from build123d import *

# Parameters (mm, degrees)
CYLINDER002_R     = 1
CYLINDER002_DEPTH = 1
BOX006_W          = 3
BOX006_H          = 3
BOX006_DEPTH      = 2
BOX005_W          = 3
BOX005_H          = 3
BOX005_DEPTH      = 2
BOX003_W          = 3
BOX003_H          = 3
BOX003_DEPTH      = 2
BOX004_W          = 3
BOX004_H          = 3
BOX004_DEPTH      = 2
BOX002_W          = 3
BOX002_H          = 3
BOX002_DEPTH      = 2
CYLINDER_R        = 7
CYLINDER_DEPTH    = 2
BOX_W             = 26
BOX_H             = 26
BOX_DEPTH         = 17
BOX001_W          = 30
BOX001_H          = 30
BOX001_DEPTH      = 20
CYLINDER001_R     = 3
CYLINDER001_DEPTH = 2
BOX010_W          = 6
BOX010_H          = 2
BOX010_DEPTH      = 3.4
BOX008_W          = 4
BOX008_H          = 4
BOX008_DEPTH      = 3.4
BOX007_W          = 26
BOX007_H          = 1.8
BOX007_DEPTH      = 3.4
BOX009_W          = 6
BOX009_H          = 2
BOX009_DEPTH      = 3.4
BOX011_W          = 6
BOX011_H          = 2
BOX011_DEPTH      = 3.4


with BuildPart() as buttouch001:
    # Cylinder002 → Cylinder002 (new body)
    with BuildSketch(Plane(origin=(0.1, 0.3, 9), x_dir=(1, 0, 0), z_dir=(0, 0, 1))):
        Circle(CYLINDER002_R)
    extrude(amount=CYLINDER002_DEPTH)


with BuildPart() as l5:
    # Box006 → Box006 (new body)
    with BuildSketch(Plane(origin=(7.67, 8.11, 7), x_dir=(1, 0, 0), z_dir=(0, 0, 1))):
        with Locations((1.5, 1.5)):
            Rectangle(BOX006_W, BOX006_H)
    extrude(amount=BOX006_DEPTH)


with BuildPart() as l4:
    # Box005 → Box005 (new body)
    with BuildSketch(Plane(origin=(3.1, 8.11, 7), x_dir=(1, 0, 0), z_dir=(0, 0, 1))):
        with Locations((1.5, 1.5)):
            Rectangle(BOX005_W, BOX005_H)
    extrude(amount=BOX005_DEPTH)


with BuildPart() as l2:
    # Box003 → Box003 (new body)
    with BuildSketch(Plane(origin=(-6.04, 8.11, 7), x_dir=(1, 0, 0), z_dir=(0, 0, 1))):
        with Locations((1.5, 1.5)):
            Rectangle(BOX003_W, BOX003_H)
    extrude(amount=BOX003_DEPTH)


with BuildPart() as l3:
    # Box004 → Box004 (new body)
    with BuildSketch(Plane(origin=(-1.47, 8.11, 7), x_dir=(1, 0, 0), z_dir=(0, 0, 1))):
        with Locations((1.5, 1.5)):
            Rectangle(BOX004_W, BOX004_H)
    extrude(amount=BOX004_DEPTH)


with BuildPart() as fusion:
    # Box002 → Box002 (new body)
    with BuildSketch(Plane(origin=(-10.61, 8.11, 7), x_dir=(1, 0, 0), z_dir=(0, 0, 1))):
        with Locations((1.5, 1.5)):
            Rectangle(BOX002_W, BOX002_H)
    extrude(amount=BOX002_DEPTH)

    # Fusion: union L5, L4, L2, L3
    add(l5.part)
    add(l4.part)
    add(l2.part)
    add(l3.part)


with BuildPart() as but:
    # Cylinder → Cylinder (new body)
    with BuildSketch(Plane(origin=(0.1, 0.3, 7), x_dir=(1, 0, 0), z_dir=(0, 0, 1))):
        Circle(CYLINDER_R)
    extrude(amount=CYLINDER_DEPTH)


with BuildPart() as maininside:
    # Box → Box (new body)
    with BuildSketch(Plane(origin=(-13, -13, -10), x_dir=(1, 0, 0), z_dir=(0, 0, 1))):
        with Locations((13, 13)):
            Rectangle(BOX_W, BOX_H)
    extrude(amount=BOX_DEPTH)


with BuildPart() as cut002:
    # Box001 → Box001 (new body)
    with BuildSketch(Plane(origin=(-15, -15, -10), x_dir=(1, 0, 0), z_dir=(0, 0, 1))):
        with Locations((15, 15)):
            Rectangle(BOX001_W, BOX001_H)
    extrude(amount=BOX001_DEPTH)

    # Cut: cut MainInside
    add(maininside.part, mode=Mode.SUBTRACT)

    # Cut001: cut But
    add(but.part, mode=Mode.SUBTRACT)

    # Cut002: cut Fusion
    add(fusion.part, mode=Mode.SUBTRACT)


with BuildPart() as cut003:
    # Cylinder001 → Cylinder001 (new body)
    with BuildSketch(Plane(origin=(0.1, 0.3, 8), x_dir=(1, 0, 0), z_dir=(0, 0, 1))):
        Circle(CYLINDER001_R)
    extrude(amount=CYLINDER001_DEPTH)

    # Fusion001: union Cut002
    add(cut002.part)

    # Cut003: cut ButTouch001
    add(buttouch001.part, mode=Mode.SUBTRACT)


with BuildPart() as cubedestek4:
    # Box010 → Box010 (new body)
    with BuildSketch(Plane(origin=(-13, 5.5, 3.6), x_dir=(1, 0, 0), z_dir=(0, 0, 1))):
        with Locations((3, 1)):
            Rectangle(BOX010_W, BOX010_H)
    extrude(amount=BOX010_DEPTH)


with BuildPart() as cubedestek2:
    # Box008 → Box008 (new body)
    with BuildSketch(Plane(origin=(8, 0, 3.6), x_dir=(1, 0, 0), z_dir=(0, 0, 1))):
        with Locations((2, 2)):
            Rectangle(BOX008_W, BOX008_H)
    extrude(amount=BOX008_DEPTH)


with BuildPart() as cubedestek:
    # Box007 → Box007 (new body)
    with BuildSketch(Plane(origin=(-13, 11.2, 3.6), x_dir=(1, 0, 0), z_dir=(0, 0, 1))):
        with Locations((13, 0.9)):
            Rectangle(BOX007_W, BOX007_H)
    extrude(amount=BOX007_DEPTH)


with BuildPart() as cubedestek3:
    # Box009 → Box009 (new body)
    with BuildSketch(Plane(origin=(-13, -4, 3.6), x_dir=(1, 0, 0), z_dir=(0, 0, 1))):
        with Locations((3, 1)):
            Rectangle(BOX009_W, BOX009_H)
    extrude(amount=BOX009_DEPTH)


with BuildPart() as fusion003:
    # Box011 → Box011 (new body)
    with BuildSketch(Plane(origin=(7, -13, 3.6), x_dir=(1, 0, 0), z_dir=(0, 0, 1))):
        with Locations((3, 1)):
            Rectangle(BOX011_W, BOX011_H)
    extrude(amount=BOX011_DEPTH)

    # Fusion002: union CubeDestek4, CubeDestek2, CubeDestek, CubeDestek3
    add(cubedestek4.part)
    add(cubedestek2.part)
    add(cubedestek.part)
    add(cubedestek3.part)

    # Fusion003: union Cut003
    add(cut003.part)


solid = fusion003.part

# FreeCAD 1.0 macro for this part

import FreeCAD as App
import Part
import Sketcher

doc = App.newDocument("Part")
body = doc.addObject("PartDesign::Body", "Body")

# Sketch on XY plane
sketch1 = body.newObject("Sketcher::SketchObject", "Sketch")
sketch1.AttachmentSupport = (doc.getObject("XY_Plane"), [""])
sketch1.MapMode = "FlatFace"
sketch1.AttachmentOffset = App.Placement(App.Vector(0, 0, 9), App.Rotation())
sketch1.addGeometry(Part.Circle(App.Vector(0.1, 0.3, 0), App.Vector(0, 0, 1), 1), False)
sketch1.addConstraint([
    Sketcher.Constraint("Diameter", 0, 2.0),
    Sketcher.Constraint("DistanceX", -1, 1, 0, 3, 0.1),
    Sketcher.Constraint("DistanceY", -1, 1, 0, 3, 0.3),
])
pad1 = body.newObject("PartDesign::Pad", "Pad")
pad1.Profile = sketch1
pad1.Length = 1
body2 = doc.addObject("PartDesign::Body", "Body001")

# Sketch on XY plane
sketch2 = body2.newObject("Sketcher::SketchObject", "Sketch001")
sketch2.AttachmentSupport = (doc.getObject("XY_Plane001"), [""])
sketch2.MapMode = "FlatFace"
sketch2.AttachmentOffset = App.Placement(App.Vector(0, 0, 7), App.Rotation())
sketch2.addGeometry([
    Part.LineSegment(App.Vector(7.7, 11.1, 0), App.Vector(7.7, 8.1, 0)),
    Part.LineSegment(App.Vector(7.7, 8.1, 0), App.Vector(10.7, 8.1, 0)),
    Part.LineSegment(App.Vector(10.7, 8.1, 0), App.Vector(10.7, 11.1, 0)),
    Part.LineSegment(App.Vector(10.7, 11.1, 0), App.Vector(7.7, 11.1, 0)),
], False)
sketch2.addConstraint([
    Sketcher.Constraint("Coincident", 0, 2, 1, 1),
    Sketcher.Constraint("Coincident", 1, 2, 2, 1),
    Sketcher.Constraint("Coincident", 2, 2, 3, 1),
    Sketcher.Constraint("Coincident", 3, 2, 0, 1),
    Sketcher.Constraint("Vertical", 0),
    Sketcher.Constraint("Horizontal", 1),
    Sketcher.Constraint("Vertical", 2),
    Sketcher.Constraint("Horizontal", 3),
    Sketcher.Constraint("Equal", 3, 0),
    Sketcher.Constraint("DistanceX", 1, 1, 1, 2, 3.0),
    Sketcher.Constraint("DistanceX", -1, 1, 0, 2, 7.67),
    Sketcher.Constraint("DistanceY", -1, 1, 0, 2, 8.11),
])
pad2 = body2.newObject("PartDesign::Pad", "Pad001")
pad2.Profile = sketch2
pad2.Length = 2
body3 = doc.addObject("PartDesign::Body", "Body002")

# Sketch on XY plane
sketch3 = body3.newObject("Sketcher::SketchObject", "Sketch002")
sketch3.AttachmentSupport = (doc.getObject("XY_Plane002"), [""])
sketch3.MapMode = "FlatFace"
sketch3.AttachmentOffset = App.Placement(App.Vector(0, 0, 7), App.Rotation())
sketch3.addGeometry([
    Part.LineSegment(App.Vector(3.1, 11.1, 0), App.Vector(3.1, 8.1, 0)),
    Part.LineSegment(App.Vector(3.1, 8.1, 0), App.Vector(6.1, 8.1, 0)),
    Part.LineSegment(App.Vector(6.1, 8.1, 0), App.Vector(6.1, 11.1, 0)),
    Part.LineSegment(App.Vector(6.1, 11.1, 0), App.Vector(3.1, 11.1, 0)),
], False)
sketch3.addConstraint([
    Sketcher.Constraint("Coincident", 0, 2, 1, 1),
    Sketcher.Constraint("Coincident", 1, 2, 2, 1),
    Sketcher.Constraint("Coincident", 2, 2, 3, 1),
    Sketcher.Constraint("Coincident", 3, 2, 0, 1),
    Sketcher.Constraint("Vertical", 0),
    Sketcher.Constraint("Horizontal", 1),
    Sketcher.Constraint("Vertical", 2),
    Sketcher.Constraint("Horizontal", 3),
    Sketcher.Constraint("Equal", 3, 0),
    Sketcher.Constraint("DistanceX", 1, 1, 1, 2, 3.0),
    Sketcher.Constraint("DistanceX", -1, 1, 0, 2, 3.1),
    Sketcher.Constraint("DistanceY", -1, 1, 0, 2, 8.11),
])
pad3 = body3.newObject("PartDesign::Pad", "Pad002")
pad3.Profile = sketch3
pad3.Length = 2
body4 = doc.addObject("PartDesign::Body", "Body003")

# Sketch on XY plane
sketch4 = body4.newObject("Sketcher::SketchObject", "Sketch003")
sketch4.AttachmentSupport = (doc.getObject("XY_Plane003"), [""])
sketch4.MapMode = "FlatFace"
sketch4.AttachmentOffset = App.Placement(App.Vector(0, 0, 7), App.Rotation())
sketch4.addGeometry([
    Part.LineSegment(App.Vector(-6, 11.1, 0), App.Vector(-6, 8.1, 0)),
    Part.LineSegment(App.Vector(-6, 8.1, 0), App.Vector(-3, 8.1, 0)),
    Part.LineSegment(App.Vector(-3, 8.1, 0), App.Vector(-3, 11.1, 0)),
    Part.LineSegment(App.Vector(-3, 11.1, 0), App.Vector(-6, 11.1, 0)),
], False)
sketch4.addConstraint([
    Sketcher.Constraint("Coincident", 0, 2, 1, 1),
    Sketcher.Constraint("Coincident", 1, 2, 2, 1),
    Sketcher.Constraint("Coincident", 2, 2, 3, 1),
    Sketcher.Constraint("Coincident", 3, 2, 0, 1),
    Sketcher.Constraint("Vertical", 0),
    Sketcher.Constraint("Horizontal", 1),
    Sketcher.Constraint("Vertical", 2),
    Sketcher.Constraint("Horizontal", 3),
    Sketcher.Constraint("Equal", 3, 0),
    Sketcher.Constraint("DistanceX", 1, 1, 1, 2, 3.0),
    Sketcher.Constraint("DistanceX", 0, 2, -1, 1, 6.04),
    Sketcher.Constraint("DistanceY", -1, 1, 0, 2, 8.11),
])
pad4 = body4.newObject("PartDesign::Pad", "Pad003")
pad4.Profile = sketch4
pad4.Length = 2
body5 = doc.addObject("PartDesign::Body", "Body004")

# Sketch on XY plane
sketch5 = body5.newObject("Sketcher::SketchObject", "Sketch004")
sketch5.AttachmentSupport = (doc.getObject("XY_Plane004"), [""])
sketch5.MapMode = "FlatFace"
sketch5.AttachmentOffset = App.Placement(App.Vector(0, 0, 7), App.Rotation())
sketch5.addGeometry([
    Part.LineSegment(App.Vector(-1.5, 11.1, 0), App.Vector(-1.5, 8.1, 0)),
    Part.LineSegment(App.Vector(-1.5, 8.1, 0), App.Vector(1.5, 8.1, 0)),
    Part.LineSegment(App.Vector(1.5, 8.1, 0), App.Vector(1.5, 11.1, 0)),
    Part.LineSegment(App.Vector(1.5, 11.1, 0), App.Vector(-1.5, 11.1, 0)),
], False)
sketch5.addConstraint([
    Sketcher.Constraint("Coincident", 0, 2, 1, 1),
    Sketcher.Constraint("Coincident", 1, 2, 2, 1),
    Sketcher.Constraint("Coincident", 2, 2, 3, 1),
    Sketcher.Constraint("Coincident", 3, 2, 0, 1),
    Sketcher.Constraint("Vertical", 0),
    Sketcher.Constraint("Horizontal", 1),
    Sketcher.Constraint("Vertical", 2),
    Sketcher.Constraint("Horizontal", 3),
    Sketcher.Constraint("Equal", 3, 0),
    Sketcher.Constraint("DistanceX", 1, 1, 1, 2, 3.0),
    Sketcher.Constraint("DistanceX", 0, 2, -1, 1, 1.47),
    Sketcher.Constraint("DistanceY", -1, 1, 0, 2, 8.11),
])
pad5 = body5.newObject("PartDesign::Pad", "Pad004")
pad5.Profile = sketch5
pad5.Length = 2
body6 = doc.addObject("PartDesign::Body", "Body005")
body6.AllowCompound = True

# Sketch on XY plane
sketch6 = body6.newObject("Sketcher::SketchObject", "Sketch005")
sketch6.AttachmentSupport = (doc.getObject("XY_Plane005"), [""])
sketch6.MapMode = "FlatFace"
sketch6.AttachmentOffset = App.Placement(App.Vector(0, 0, 7), App.Rotation())
sketch6.addGeometry([
    Part.LineSegment(App.Vector(-10.6, 11.1, 0), App.Vector(-10.6, 8.1, 0)),
    Part.LineSegment(App.Vector(-10.6, 8.1, 0), App.Vector(-7.6, 8.1, 0)),
    Part.LineSegment(App.Vector(-7.6, 8.1, 0), App.Vector(-7.6, 11.1, 0)),
    Part.LineSegment(App.Vector(-7.6, 11.1, 0), App.Vector(-10.6, 11.1, 0)),
], False)
sketch6.addConstraint([
    Sketcher.Constraint("Coincident", 0, 2, 1, 1),
    Sketcher.Constraint("Coincident", 1, 2, 2, 1),
    Sketcher.Constraint("Coincident", 2, 2, 3, 1),
    Sketcher.Constraint("Coincident", 3, 2, 0, 1),
    Sketcher.Constraint("Vertical", 0),
    Sketcher.Constraint("Horizontal", 1),
    Sketcher.Constraint("Vertical", 2),
    Sketcher.Constraint("Horizontal", 3),
    Sketcher.Constraint("Equal", 3, 0),
    Sketcher.Constraint("DistanceX", 1, 1, 1, 2, 3.0),
    Sketcher.Constraint("DistanceX", 0, 2, -1, 1, 10.61),
    Sketcher.Constraint("DistanceY", -1, 1, 0, 2, 8.11),
])
pad6 = body6.newObject("PartDesign::Pad", "Pad005")
pad6.Profile = sketch6
pad6.Length = 2
doc.recompute()

boolean = body6.newObject("PartDesign::Boolean", "Boolean")
boolean.Type = "Fuse"
boolean.addObjects([body2])
doc.recompute()

boolean2 = body6.newObject("PartDesign::Boolean", "Boolean001")
boolean2.Type = "Fuse"
boolean2.addObjects([body3])
doc.recompute()

boolean3 = body6.newObject("PartDesign::Boolean", "Boolean002")
boolean3.Type = "Fuse"
boolean3.addObjects([body4])
doc.recompute()

boolean4 = body6.newObject("PartDesign::Boolean", "Boolean003")
boolean4.Type = "Fuse"
boolean4.addObjects([body5])
body7 = doc.addObject("PartDesign::Body", "Body006")

# Sketch on XY plane
sketch7 = body7.newObject("Sketcher::SketchObject", "Sketch006")
sketch7.AttachmentSupport = (doc.getObject("XY_Plane006"), [""])
sketch7.MapMode = "FlatFace"
sketch7.AttachmentOffset = App.Placement(App.Vector(0, 0, 7), App.Rotation())
sketch7.addGeometry(Part.Circle(App.Vector(0, 0, 0), App.Vector(0, 0, 1), 7), False)
sketch7.addConstraint([
    Sketcher.Constraint("Diameter", 0, 14.0),
    Sketcher.Constraint("DistanceX", -1, 1, 0, 3, 0.1),
    Sketcher.Constraint("DistanceY", -1, 1, 0, 3, 0.3),
])
pad7 = body7.newObject("PartDesign::Pad", "Pad006")
pad7.Profile = sketch7
pad7.Length = 2
body8 = doc.addObject("PartDesign::Body", "Body007")

# Sketch on XY plane
sketch8 = body8.newObject("Sketcher::SketchObject", "Sketch007")
sketch8.AttachmentSupport = (doc.getObject("XY_Plane007"), [""])
sketch8.MapMode = "FlatFace"
sketch8.AttachmentOffset = App.Placement(App.Vector(0, 0, -10), App.Rotation())
sketch8.addGeometry([
    Part.LineSegment(App.Vector(-13, 13, 0), App.Vector(-13, -13, 0)),
    Part.LineSegment(App.Vector(-13, -13, 0), App.Vector(13, -13, 0)),
    Part.LineSegment(App.Vector(13, -13, 0), App.Vector(13, 13, 0)),
    Part.LineSegment(App.Vector(13, 13, 0), App.Vector(-13, 13, 0)),
], False)
sketch8.addConstraint([
    Sketcher.Constraint("Coincident", 0, 2, 1, 1),
    Sketcher.Constraint("Coincident", 1, 2, 2, 1),
    Sketcher.Constraint("Coincident", 2, 2, 3, 1),
    Sketcher.Constraint("Coincident", 3, 2, 0, 1),
    Sketcher.Constraint("Vertical", 0),
    Sketcher.Constraint("Horizontal", 1),
    Sketcher.Constraint("Vertical", 2),
    Sketcher.Constraint("Horizontal", 3),
    Sketcher.Constraint("Symmetric", 0, 2, 2, 2, -1, 1),
    Sketcher.Constraint("Equal", 3, 0),
    Sketcher.Constraint("DistanceX", 1, 1, 1, 2, 26.0),
])
pad8 = body8.newObject("PartDesign::Pad", "Pad007")
pad8.Profile = sketch8
pad8.Length = 17
body9 = doc.addObject("PartDesign::Body", "Body008")

# Sketch on XY plane
sketch9 = body9.newObject("Sketcher::SketchObject", "Sketch008")
sketch9.AttachmentSupport = (doc.getObject("XY_Plane008"), [""])
sketch9.MapMode = "FlatFace"
sketch9.AttachmentOffset = App.Placement(App.Vector(0, 0, -10), App.Rotation())
sketch9.addGeometry([
    Part.LineSegment(App.Vector(-15, 15, 0), App.Vector(-15, -15, 0)),
    Part.LineSegment(App.Vector(-15, -15, 0), App.Vector(15, -15, 0)),
    Part.LineSegment(App.Vector(15, -15, 0), App.Vector(15, 15, 0)),
    Part.LineSegment(App.Vector(15, 15, 0), App.Vector(-15, 15, 0)),
], False)
sketch9.addConstraint([
    Sketcher.Constraint("Coincident", 0, 2, 1, 1),
    Sketcher.Constraint("Coincident", 1, 2, 2, 1),
    Sketcher.Constraint("Coincident", 2, 2, 3, 1),
    Sketcher.Constraint("Coincident", 3, 2, 0, 1),
    Sketcher.Constraint("Vertical", 0),
    Sketcher.Constraint("Horizontal", 1),
    Sketcher.Constraint("Vertical", 2),
    Sketcher.Constraint("Horizontal", 3),
    Sketcher.Constraint("Symmetric", 0, 2, 2, 2, -1, 1),
    Sketcher.Constraint("Equal", 3, 0),
    Sketcher.Constraint("DistanceX", 1, 1, 1, 2, 30.0),
])
pad9 = body9.newObject("PartDesign::Pad", "Pad008")
pad9.Profile = sketch9
pad9.Length = 20
doc.recompute()

boolean5 = body9.newObject("PartDesign::Boolean", "Boolean004")
boolean5.Type = "Cut"
boolean5.addObjects([body8])
doc.recompute()

boolean6 = body9.newObject("PartDesign::Boolean", "Boolean005")
boolean6.Type = "Cut"
boolean6.addObjects([body7])
doc.recompute()

boolean7 = body9.newObject("PartDesign::Boolean", "Boolean006")
boolean7.Type = "Cut"
boolean7.addObjects([body6])
body10 = doc.addObject("PartDesign::Body", "Body009")

# Sketch on XY plane
sketch10 = body10.newObject("Sketcher::SketchObject", "Sketch009")
sketch10.AttachmentSupport = (doc.getObject("XY_Plane009"), [""])
sketch10.MapMode = "FlatFace"
sketch10.AttachmentOffset = App.Placement(App.Vector(0, 0, 8), App.Rotation())
sketch10.addGeometry(Part.Circle(App.Vector(0.1, 0.3, 0), App.Vector(0, 0, 1), 3), False)
sketch10.addConstraint([
    Sketcher.Constraint("Diameter", 0, 6.0),
    Sketcher.Constraint("DistanceX", -1, 1, 0, 3, 0.1),
    Sketcher.Constraint("DistanceY", -1, 1, 0, 3, 0.3),
])
pad10 = body10.newObject("PartDesign::Pad", "Pad009")
pad10.Profile = sketch10
pad10.Length = 2
doc.recompute()

boolean8 = body10.newObject("PartDesign::Boolean", "Boolean007")
boolean8.Type = "Fuse"
boolean8.addObjects([body9])
doc.recompute()

boolean9 = body10.newObject("PartDesign::Boolean", "Boolean008")
boolean9.Type = "Cut"
boolean9.addObjects([body])
body11 = doc.addObject("PartDesign::Body", "Body010")

# Sketch on XY plane
sketch11 = body11.newObject("Sketcher::SketchObject", "Sketch010")
sketch11.AttachmentSupport = (doc.getObject("XY_Plane010"), [""])
sketch11.MapMode = "FlatFace"
sketch11.AttachmentOffset = App.Placement(App.Vector(0, 0, 3.6), App.Rotation())
sketch11.addGeometry([
    Part.LineSegment(App.Vector(-13, 7.5, 0), App.Vector(-13, 5.5, 0)),
    Part.LineSegment(App.Vector(-13, 5.5, 0), App.Vector(-7, 5.5, 0)),
    Part.LineSegment(App.Vector(-7, 5.5, 0), App.Vector(-7, 7.5, 0)),
    Part.LineSegment(App.Vector(-7, 7.5, 0), App.Vector(-13, 7.5, 0)),
], False)
sketch11.addConstraint([
    Sketcher.Constraint("Coincident", 0, 2, 1, 1),
    Sketcher.Constraint("Coincident", 1, 2, 2, 1),
    Sketcher.Constraint("Coincident", 2, 2, 3, 1),
    Sketcher.Constraint("Coincident", 3, 2, 0, 1),
    Sketcher.Constraint("Vertical", 0),
    Sketcher.Constraint("Horizontal", 1),
    Sketcher.Constraint("Vertical", 2),
    Sketcher.Constraint("Horizontal", 3),
    Sketcher.Constraint("DistanceX", 1, 1, 1, 2, 6.0),
    Sketcher.Constraint("DistanceY", 0, 2, 0, 1, 2.0),
    Sketcher.Constraint("DistanceX", 0, 2, -1, 1, 13.0),
    Sketcher.Constraint("DistanceY", -1, 1, 0, 2, 5.5),
])
pad11 = body11.newObject("PartDesign::Pad", "Pad010")
pad11.Profile = sketch11
pad11.Length = 3.4
body12 = doc.addObject("PartDesign::Body", "Body011")

# Sketch on XY plane
sketch12 = body12.newObject("Sketcher::SketchObject", "Sketch011")
sketch12.AttachmentSupport = (doc.getObject("XY_Plane011"), [""])
sketch12.MapMode = "FlatFace"
sketch12.AttachmentOffset = App.Placement(App.Vector(0, 0, 3.6), App.Rotation())
sketch12.addGeometry([
    Part.LineSegment(App.Vector(8, 4, 0), App.Vector(8, 0, 0)),
    Part.LineSegment(App.Vector(8, 0, 0), App.Vector(12, 0, 0)),
    Part.LineSegment(App.Vector(12, 0, 0), App.Vector(12, 4, 0)),
    Part.LineSegment(App.Vector(12, 4, 0), App.Vector(8, 4, 0)),
], False)
sketch12.addConstraint([
    Sketcher.Constraint("Coincident", 0, 2, 1, 1),
    Sketcher.Constraint("Coincident", 1, 2, 2, 1),
    Sketcher.Constraint("Coincident", 2, 2, 3, 1),
    Sketcher.Constraint("Coincident", 3, 2, 0, 1),
    Sketcher.Constraint("Vertical", 0),
    Sketcher.Constraint("Horizontal", 1),
    Sketcher.Constraint("Vertical", 2),
    Sketcher.Constraint("Horizontal", 3),
    Sketcher.Constraint("PointOnObject", 0, 2, -1),
    Sketcher.Constraint("Equal", 3, 0),
    Sketcher.Constraint("DistanceX", 1, 1, 1, 2, 4.0),
    Sketcher.Constraint("DistanceX", -1, 1, 0, 2, 8.0),
])
pad12 = body12.newObject("PartDesign::Pad", "Pad011")
pad12.Profile = sketch12
pad12.Length = 3.4
body13 = doc.addObject("PartDesign::Body", "Body012")

# Sketch on XY plane
sketch13 = body13.newObject("Sketcher::SketchObject", "Sketch012")
sketch13.AttachmentSupport = (doc.getObject("XY_Plane012"), [""])
sketch13.MapMode = "FlatFace"
sketch13.AttachmentOffset = App.Placement(App.Vector(0, 0, 3.6), App.Rotation())
sketch13.addGeometry([
    Part.LineSegment(App.Vector(-13, 13, 0), App.Vector(-13, 11.2, 0)),
    Part.LineSegment(App.Vector(-13, 11.2, 0), App.Vector(13, 11.2, 0)),
    Part.LineSegment(App.Vector(13, 11.2, 0), App.Vector(13, 13, 0)),
    Part.LineSegment(App.Vector(13, 13, 0), App.Vector(-13, 13, 0)),
], False)
sketch13.addConstraint([
    Sketcher.Constraint("Coincident", 0, 2, 1, 1),
    Sketcher.Constraint("Coincident", 1, 2, 2, 1),
    Sketcher.Constraint("Coincident", 2, 2, 3, 1),
    Sketcher.Constraint("Coincident", 3, 2, 0, 1),
    Sketcher.Constraint("Vertical", 0),
    Sketcher.Constraint("Horizontal", 1),
    Sketcher.Constraint("Vertical", 2),
    Sketcher.Constraint("Horizontal", 3),
    Sketcher.Constraint("DistanceX", 1, 1, 1, 2, 26.0),
    Sketcher.Constraint("DistanceY", 0, 2, 0, 1, 1.8),
    Sketcher.Constraint("DistanceX", 0, 2, -1, 1, 13.0),
    Sketcher.Constraint("DistanceY", -1, 1, 2, 2, 13.0),
])
pad13 = body13.newObject("PartDesign::Pad", "Pad012")
pad13.Profile = sketch13
pad13.Length = 3.4
body14 = doc.addObject("PartDesign::Body", "Body013")

# Sketch on XY plane
sketch14 = body14.newObject("Sketcher::SketchObject", "Sketch013")
sketch14.AttachmentSupport = (doc.getObject("XY_Plane013"), [""])
sketch14.MapMode = "FlatFace"
sketch14.AttachmentOffset = App.Placement(App.Vector(0, 0, 3.6), App.Rotation())
sketch14.addGeometry([
    Part.LineSegment(App.Vector(-13, -2, 0), App.Vector(-13, -4, 0)),
    Part.LineSegment(App.Vector(-13, -4, 0), App.Vector(-7, -4, 0)),
    Part.LineSegment(App.Vector(-7, -4, 0), App.Vector(-7, -2, 0)),
    Part.LineSegment(App.Vector(-7, -2, 0), App.Vector(-13, -2, 0)),
], False)
sketch14.addConstraint([
    Sketcher.Constraint("Coincident", 0, 2, 1, 1),
    Sketcher.Constraint("Coincident", 1, 2, 2, 1),
    Sketcher.Constraint("Coincident", 2, 2, 3, 1),
    Sketcher.Constraint("Coincident", 3, 2, 0, 1),
    Sketcher.Constraint("Vertical", 0),
    Sketcher.Constraint("Horizontal", 1),
    Sketcher.Constraint("Vertical", 2),
    Sketcher.Constraint("Horizontal", 3),
    Sketcher.Constraint("DistanceX", 1, 1, 1, 2, 6.0),
    Sketcher.Constraint("DistanceY", 0, 2, 0, 1, 2.0),
    Sketcher.Constraint("DistanceX", 0, 2, -1, 1, 13.0),
    Sketcher.Constraint("DistanceY", 0, 2, -1, 1, 4.0),
])
pad14 = body14.newObject("PartDesign::Pad", "Pad013")
pad14.Profile = sketch14
pad14.Length = 3.4
body15 = doc.addObject("PartDesign::Body", "Body014")
body15.AllowCompound = True

# Sketch on XY plane
sketch15 = body15.newObject("Sketcher::SketchObject", "Sketch014")
sketch15.AttachmentSupport = (doc.getObject("XY_Plane014"), [""])
sketch15.MapMode = "FlatFace"
sketch15.AttachmentOffset = App.Placement(App.Vector(0, 0, 3.6), App.Rotation())
sketch15.addGeometry([
    Part.LineSegment(App.Vector(7, -11, 0), App.Vector(7, -13, 0)),
    Part.LineSegment(App.Vector(7, -13, 0), App.Vector(13, -13, 0)),
    Part.LineSegment(App.Vector(13, -13, 0), App.Vector(13, -11, 0)),
    Part.LineSegment(App.Vector(13, -11, 0), App.Vector(7, -11, 0)),
], False)
sketch15.addConstraint([
    Sketcher.Constraint("Coincident", 0, 2, 1, 1),
    Sketcher.Constraint("Coincident", 1, 2, 2, 1),
    Sketcher.Constraint("Coincident", 2, 2, 3, 1),
    Sketcher.Constraint("Coincident", 3, 2, 0, 1),
    Sketcher.Constraint("Vertical", 0),
    Sketcher.Constraint("Horizontal", 1),
    Sketcher.Constraint("Vertical", 2),
    Sketcher.Constraint("Horizontal", 3),
    Sketcher.Constraint("DistanceX", 1, 1, 1, 2, 6.0),
    Sketcher.Constraint("DistanceY", 0, 2, 0, 1, 2.0),
    Sketcher.Constraint("DistanceX", -1, 1, 0, 2, 7.0),
    Sketcher.Constraint("DistanceY", 0, 2, -1, 1, 13.0),
])
pad15 = body15.newObject("PartDesign::Pad", "Pad014")
pad15.Profile = sketch15
pad15.Length = 3.4
doc.recompute()

boolean10 = body15.newObject("PartDesign::Boolean", "Boolean009")
boolean10.Type = "Fuse"
boolean10.addObjects([body11])
doc.recompute()

boolean11 = body15.newObject("PartDesign::Boolean", "Boolean010")
boolean11.Type = "Fuse"
boolean11.addObjects([body12])
doc.recompute()

boolean12 = body15.newObject("PartDesign::Boolean", "Boolean011")
boolean12.Type = "Fuse"
boolean12.addObjects([body13])
doc.recompute()

boolean13 = body15.newObject("PartDesign::Boolean", "Boolean012")
boolean13.Type = "Fuse"
boolean13.addObjects([body14])
doc.recompute()

boolean14 = body15.newObject("PartDesign::Boolean", "Boolean013")
boolean14.Type = "Fuse"
boolean14.addObjects([body10])

doc.recompute()
